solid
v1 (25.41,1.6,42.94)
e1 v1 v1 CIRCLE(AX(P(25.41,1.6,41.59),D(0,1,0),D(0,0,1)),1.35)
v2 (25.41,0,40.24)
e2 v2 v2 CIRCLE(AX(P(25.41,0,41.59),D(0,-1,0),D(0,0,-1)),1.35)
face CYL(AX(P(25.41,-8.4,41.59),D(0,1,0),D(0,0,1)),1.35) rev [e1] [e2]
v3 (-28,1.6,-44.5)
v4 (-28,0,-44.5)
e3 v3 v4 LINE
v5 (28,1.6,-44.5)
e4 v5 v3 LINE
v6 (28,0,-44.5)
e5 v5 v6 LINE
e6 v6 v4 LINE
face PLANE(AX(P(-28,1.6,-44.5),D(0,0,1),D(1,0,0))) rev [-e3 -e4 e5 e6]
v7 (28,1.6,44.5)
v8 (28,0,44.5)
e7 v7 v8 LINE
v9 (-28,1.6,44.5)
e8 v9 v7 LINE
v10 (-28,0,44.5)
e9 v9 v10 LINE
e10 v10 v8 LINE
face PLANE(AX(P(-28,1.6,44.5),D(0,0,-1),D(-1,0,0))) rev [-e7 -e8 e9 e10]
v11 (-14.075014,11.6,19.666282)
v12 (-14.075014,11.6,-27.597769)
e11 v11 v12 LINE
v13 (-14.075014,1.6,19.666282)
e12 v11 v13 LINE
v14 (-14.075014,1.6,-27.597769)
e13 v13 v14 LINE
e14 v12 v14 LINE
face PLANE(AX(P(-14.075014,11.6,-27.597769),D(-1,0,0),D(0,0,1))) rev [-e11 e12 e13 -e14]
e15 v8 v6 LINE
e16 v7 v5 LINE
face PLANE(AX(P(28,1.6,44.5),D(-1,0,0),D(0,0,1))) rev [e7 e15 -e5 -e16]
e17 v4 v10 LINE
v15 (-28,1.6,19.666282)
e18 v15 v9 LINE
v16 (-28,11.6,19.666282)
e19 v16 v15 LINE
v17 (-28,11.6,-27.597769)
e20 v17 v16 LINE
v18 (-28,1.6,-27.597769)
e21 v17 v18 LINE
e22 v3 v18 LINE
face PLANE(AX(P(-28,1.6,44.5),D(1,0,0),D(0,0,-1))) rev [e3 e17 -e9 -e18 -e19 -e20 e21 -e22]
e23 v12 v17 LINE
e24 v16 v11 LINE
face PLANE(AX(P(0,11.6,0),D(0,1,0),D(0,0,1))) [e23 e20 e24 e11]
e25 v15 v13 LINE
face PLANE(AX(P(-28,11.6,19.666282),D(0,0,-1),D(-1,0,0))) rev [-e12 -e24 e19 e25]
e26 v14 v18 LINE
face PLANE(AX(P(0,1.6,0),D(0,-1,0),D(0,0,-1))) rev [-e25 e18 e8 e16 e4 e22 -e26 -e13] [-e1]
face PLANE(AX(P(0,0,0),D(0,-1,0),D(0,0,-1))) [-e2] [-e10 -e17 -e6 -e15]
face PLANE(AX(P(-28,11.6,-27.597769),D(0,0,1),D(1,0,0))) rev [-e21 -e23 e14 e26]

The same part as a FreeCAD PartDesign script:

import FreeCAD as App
import Part
import Sketcher

V = App.Vector


def add_polygon(sketch, points):
    """Adds a closed chain of lines whose ends are joined by coincident constraints."""
    first, n = sketch.GeometryCount, len(points)
    for a, b in zip(points, points[1:] + points[:1]):
        sketch.addGeometry(Part.LineSegment(App.Vector(*a, 0), App.Vector(*b, 0)), False)
    for i in range(n):
        sketch.addConstraint(Sketcher.Constraint("Coincident", first + i, 2, first + (i + 1) % n, 1))

doc = App.newDocument("Part")
body = doc.addObject("PartDesign::Body", "Body")

# Sketch on XZ plane
sketch1 = body.newObject("Sketcher::SketchObject", "Sketch")
sketch1.AttachmentSupport = (doc.getObject("XZ_Plane"), [""])
sketch1.MapMode = "FlatFace"
add_polygon(sketch1, [(-28, -44), (-28, 44), (28, 44), (28, -44)])  # lines 0-3
sketch1.addConstraint([
    Sketcher.Constraint("Vertical", 0),
    Sketcher.Constraint("Horizontal", 1),
    Sketcher.Constraint("Vertical", 2),
    Sketcher.Constraint("Horizontal", 3),
    Sketcher.Constraint("Symmetric", 0, 2, 2, 2, -1, 1),
    Sketcher.Constraint("DistanceX", 1, 1, 1, 2, 56.0),
    Sketcher.Constraint("DistanceY", 0, 1, 0, 2, 89.0),
])
pad1 = body.newObject("PartDesign::Pad", "Pad")
pad1.Profile = sketch1
pad1.Length = 1.6
pad1.Reversed = True

# Sketch on XZ plane
sketch2 = body.newObject("Sketcher::SketchObject", "Sketch001")
sketch2.AttachmentSupport = (doc.getObject("XZ_Plane"), [""])
sketch2.MapMode = "FlatFace"
sketch2.AttachmentOffset = App.Placement(V(0, 0, -1.6), App.Rotation())
add_polygon(sketch2, [(-28, -28), (-28, 20), (-14, 20), (-14, -28)])  # lines 0-3
sketch2.addConstraint([
    Sketcher.Constraint("Vertical", 0),
    Sketcher.Constraint("Horizontal", 1),
    Sketcher.Constraint("Vertical", 2),
    Sketcher.Constraint("Horizontal", 3),
    Sketcher.Constraint("DistanceX", 0, 2, -1, 1, 28.0),
    Sketcher.Constraint("DistanceY", 0, 1, 0, 2, 47.264051),
    Sketcher.Constraint("DistanceX", 1, 1, 1, 2, 13.924986),
    Sketcher.Constraint("DistanceY", 2, 2, -1, 1, 27.597769),
])
pad2 = body.newObject("PartDesign::Pad", "Pad001")
pad2.Profile = sketch2
pad2.Length = 10
pad2.Reversed = True

# Sketch on XZ plane
sketch3 = body.newObject("Sketcher::SketchObject", "Sketch002")
sketch3.AttachmentSupport = (doc.getObject("XZ_Plane"), [""])
sketch3.MapMode = "FlatFace"
sketch3.AttachmentOffset = App.Placement(V(0, 0, -1.6), App.Rotation())
sketch3.addGeometry(Part.Circle(V(25.4, 41.6, 0), V(0, 0, 1), 1.4), False)
sketch3.addConstraint([
    Sketcher.Constraint("Diameter", 0, 2.7),
    Sketcher.Constraint("DistanceX", -1, 1, 0, 3, 25.41),
    Sketcher.Constraint("DistanceY", -1, 1, 0, 3, 41.59),
])
pocket1 = body.newObject("PartDesign::Pocket", "Pocket")
pocket1.Profile = sketch3
pocket1.Length = 10
pocket1.Reversed = True

doc.recompute()
